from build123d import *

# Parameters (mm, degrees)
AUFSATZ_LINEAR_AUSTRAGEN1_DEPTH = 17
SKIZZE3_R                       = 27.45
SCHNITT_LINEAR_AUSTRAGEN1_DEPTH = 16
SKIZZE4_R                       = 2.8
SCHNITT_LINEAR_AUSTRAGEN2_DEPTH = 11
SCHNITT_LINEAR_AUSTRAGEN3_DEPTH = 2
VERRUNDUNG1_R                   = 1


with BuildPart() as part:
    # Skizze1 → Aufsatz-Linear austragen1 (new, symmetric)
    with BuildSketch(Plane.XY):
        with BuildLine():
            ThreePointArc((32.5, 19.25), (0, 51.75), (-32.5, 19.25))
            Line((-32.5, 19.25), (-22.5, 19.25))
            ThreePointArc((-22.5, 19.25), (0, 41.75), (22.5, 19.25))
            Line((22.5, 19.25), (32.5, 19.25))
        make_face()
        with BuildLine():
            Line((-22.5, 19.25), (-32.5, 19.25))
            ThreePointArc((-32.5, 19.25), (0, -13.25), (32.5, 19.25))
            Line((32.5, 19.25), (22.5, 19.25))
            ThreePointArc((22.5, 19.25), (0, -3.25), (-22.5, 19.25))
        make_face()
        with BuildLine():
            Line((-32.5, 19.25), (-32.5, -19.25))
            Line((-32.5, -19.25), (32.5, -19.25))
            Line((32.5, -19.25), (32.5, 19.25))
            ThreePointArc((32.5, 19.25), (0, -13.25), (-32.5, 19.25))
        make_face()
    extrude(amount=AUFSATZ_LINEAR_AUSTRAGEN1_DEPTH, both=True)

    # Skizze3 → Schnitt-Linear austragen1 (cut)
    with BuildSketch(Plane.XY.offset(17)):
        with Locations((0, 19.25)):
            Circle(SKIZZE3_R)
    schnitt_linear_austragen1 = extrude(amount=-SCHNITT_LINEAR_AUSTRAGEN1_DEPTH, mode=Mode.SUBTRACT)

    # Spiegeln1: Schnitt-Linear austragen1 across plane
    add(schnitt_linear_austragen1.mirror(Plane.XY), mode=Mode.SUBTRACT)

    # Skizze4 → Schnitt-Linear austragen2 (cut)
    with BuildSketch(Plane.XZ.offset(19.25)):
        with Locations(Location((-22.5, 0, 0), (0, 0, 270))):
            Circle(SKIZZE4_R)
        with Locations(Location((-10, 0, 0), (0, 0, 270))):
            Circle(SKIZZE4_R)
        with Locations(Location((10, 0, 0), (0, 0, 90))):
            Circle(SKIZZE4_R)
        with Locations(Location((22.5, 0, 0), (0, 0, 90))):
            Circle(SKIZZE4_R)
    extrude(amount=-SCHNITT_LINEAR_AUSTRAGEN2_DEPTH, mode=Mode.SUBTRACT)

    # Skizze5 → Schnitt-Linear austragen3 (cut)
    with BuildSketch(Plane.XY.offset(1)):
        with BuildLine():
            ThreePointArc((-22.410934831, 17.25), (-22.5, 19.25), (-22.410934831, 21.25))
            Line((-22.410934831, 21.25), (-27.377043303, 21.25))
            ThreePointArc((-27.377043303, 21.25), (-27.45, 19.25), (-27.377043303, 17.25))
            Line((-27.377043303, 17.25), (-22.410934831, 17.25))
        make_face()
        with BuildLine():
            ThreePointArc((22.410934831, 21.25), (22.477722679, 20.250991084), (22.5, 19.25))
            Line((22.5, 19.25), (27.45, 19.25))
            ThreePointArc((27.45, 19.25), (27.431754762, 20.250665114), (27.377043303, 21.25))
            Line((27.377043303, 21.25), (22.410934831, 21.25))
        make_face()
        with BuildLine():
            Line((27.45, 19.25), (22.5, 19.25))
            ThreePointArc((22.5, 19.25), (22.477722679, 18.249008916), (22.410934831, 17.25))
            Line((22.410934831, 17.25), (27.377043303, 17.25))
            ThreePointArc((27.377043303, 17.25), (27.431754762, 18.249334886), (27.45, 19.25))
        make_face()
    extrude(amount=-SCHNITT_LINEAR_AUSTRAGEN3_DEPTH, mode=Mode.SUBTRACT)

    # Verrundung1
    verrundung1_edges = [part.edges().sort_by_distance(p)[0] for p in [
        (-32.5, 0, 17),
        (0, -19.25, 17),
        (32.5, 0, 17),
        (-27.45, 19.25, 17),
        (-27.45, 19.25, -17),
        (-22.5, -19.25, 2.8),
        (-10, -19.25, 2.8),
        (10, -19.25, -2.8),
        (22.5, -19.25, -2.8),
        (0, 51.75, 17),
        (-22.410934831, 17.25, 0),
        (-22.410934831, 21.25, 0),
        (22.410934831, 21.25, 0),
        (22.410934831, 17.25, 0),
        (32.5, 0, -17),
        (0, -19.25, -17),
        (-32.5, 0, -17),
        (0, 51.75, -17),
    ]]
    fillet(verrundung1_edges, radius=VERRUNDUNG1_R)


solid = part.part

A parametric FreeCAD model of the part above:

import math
import FreeCAD as App
import Part
import Sketcher

V = App.Vector
Q = App.Units.Quantity


def edges_at(feature, points):
    """Names of the edges that pass closest to the given points."""
    edges = feature.Shape.Edges
    near = lambda p: min(range(len(edges)), key=lambda i: edges[i].distToShape(Part.Vertex(*p))[0])
    return sorted({f"Edge{near(p) + 1}" for p in points})

doc = App.newDocument("Part")
body = doc.addObject("PartDesign::Body", "Body")

# Sketch on XY plane
sketch1 = body.newObject("Sketcher::SketchObject", "Sketch")
sketch1.AttachmentSupport = (doc.getObject("XY_Plane"), [""])
sketch1.MapMode = "FlatFace"
sketch1.addGeometry([
    Part.ArcOfCircle(Part.Circle(V(0, 19.25, 0), V(0, 0, 1), 32.5), math.radians(0), math.radians(180)),  # 0
    Part.LineSegment(V(-32.5, 19.25, 0), V(-32.5, -19.25, 0)),  # 1
    Part.LineSegment(V(-32.5, -19.25, 0), V(32.5, -19.25, 0)),  # 2
    Part.LineSegment(V(32.5, -19.25, 0), V(32.5, 19.25, 0)),  # 3
    Part.Circle(V(0, 19.25, 0), V(0, 0, 1), 22.5),  # 4
], False)
sketch1.addConstraint([
    Sketcher.Constraint("Tangent", 0, 2, 1, 1),
    Sketcher.Constraint("Coincident", 1, 2, 2, 1),
    Sketcher.Constraint("Coincident", 2, 2, 3, 1),
    Sketcher.Constraint("Tangent", 3, 2, 0, 1),
    Sketcher.Constraint("Vertical", 1),
    Sketcher.Constraint("Horizontal", 2),
    Sketcher.Constraint("Vertical", 3),
    Sketcher.Constraint("Coincident", 4, 3, 0, 3),
    Sketcher.Constraint("Symmetric", 0, 2, 2, 2, -1, 1),
    Sketcher.Constraint("Diameter", 4, Q("45 mm")),
    Sketcher.Constraint("Radius", 0, Q("32.5 mm")),
    Sketcher.Constraint("DistanceY", 1, 2, 1, 1, Q("38.5 mm")),
])
pad1 = body.newObject("PartDesign::Pad", "Pad")
pad1.Profile = sketch1
pad1.Length = 34
pad1.Midplane = True

# Sketch on XY plane
sketch2 = body.newObject("Sketcher::SketchObject", "Sketch001")
sketch2.AttachmentSupport = (doc.getObject("XY_Plane"), [""])
sketch2.MapMode = "FlatFace"
sketch2.AttachmentOffset = App.Placement(V(0, 0, 17), App.Rotation())
sketch2.addGeometry(Part.Circle(V(0, 19.25, 0), V(0, 0, 1), 27.45), False)
sketch2.addConstraint([
    Sketcher.Constraint("PointOnObject", 0, 3, -2),
    Sketcher.Constraint("Diameter", 0, Q("54.9 mm")),
    Sketcher.Constraint("DistanceY", -1, 1, 0, 3, Q("19.25 mm")),
])
pocket1 = body.newObject("PartDesign::Pocket", "Pocket")
pocket1.Profile = sketch2
pocket1.Length = 16
doc.recompute()

mirrored = body.newObject("PartDesign::Mirrored", "Mirrored")
mirrored.Originals = [pocket1]
mirrored.MirrorPlane = (doc.getObject("XY_Plane"), [""])
body.Tip = mirrored

# Sketch on XZ plane
sketch3 = body.newObject("Sketcher::SketchObject", "Sketch002")
sketch3.AttachmentSupport = (doc.getObject("XZ_Plane"), [""])
sketch3.MapMode = "FlatFace"
sketch3.AttachmentOffset = App.Placement(V(0, 0, 19.25), App.Rotation())
sketch3.addGeometry([
    Part.Circle(V(-22.5, 0, 0), V(0, 0, 1), 2.8),
    Part.Circle(V(-10, 0, 0), V(0, 0, 1), 2.8),
    Part.Circle(V(10, 0, 0), V(0, 0, 1), 2.8),
    Part.Circle(V(22.5, 0, 0), V(0, 0, 1), 2.8),
], False)
sketch3.addConstraint([
    Sketcher.Constraint("Equal", 0, 1),
    Sketcher.Constraint("Equal", 1, 2),
    Sketcher.Constraint("Equal", 2, 3),
    Sketcher.Constraint("Symmetric", 1, 3, 2, 3, -1, 1),
    Sketcher.Constraint("Symmetric", 0, 3, 3, 3, -1, 1),
    Sketcher.Constraint("PointOnObject", 0, 3, -1),
    Sketcher.Constraint("PointOnObject", 1, 3, -1),
    Sketcher.Constraint("Diameter", 0, Q("5.6 mm")),
    Sketcher.Constraint("DistanceX", 1, 3, -1, 1, Q("10 mm")),
    Sketcher.Constraint("DistanceX", 0, 3, 3, 3, Q("45 mm")),
])
pocket2 = body.newObject("PartDesign::Pocket", "Pocket001")
pocket2.Profile = sketch3
pocket2.Length = 11

# Sketch on XY plane
sketch4 = body.newObject("Sketcher::SketchObject", "Sketch003")
sketch4.AttachmentSupport = (doc.getObject("XY_Plane"), [""])
sketch4.MapMode = "FlatFace"
sketch4.AttachmentOffset = App.Placement(V(0, 0, 1), App.Rotation())
sketch4.addGeometry([
    Part.ArcOfCircle(Part.Circle(V(0, 19.25, 0), V(0, 0, 1), 22.5), math.radians(174.900311), math.radians(185.099689)),  # 0
    Part.LineSegment(V(-22.410935, 21.25, 0), V(-27.377043, 21.25, 0)),  # 1
    Part.ArcOfCircle(Part.Circle(V(0, 19.25, 0), V(0, 0, 1), 27.45), math.radians(175.821742), math.radians(184.178258)),  # 2
    Part.LineSegment(V(-27.377043, 17.25, 0), V(-22.410935, 17.25, 0)),  # 3
    Part.ArcOfCircle(Part.Circle(V(0, 19.25, 0), V(0, 0, 1), 22.5), math.radians(0), math.radians(5.099689)),  # 4
    Part.ArcOfCircle(Part.Circle(V(0, 19.25, 0), V(0, 0, 1), 22.5), math.radians(-5.099689), math.radians(0)),  # 5
    Part.LineSegment(V(22.410935, 17.25, 0), V(27.377043, 17.25, 0)),  # 6
    Part.ArcOfCircle(Part.Circle(V(0, 19.25, 0), V(0, 0, 1), 27.45), math.radians(-4.178258), math.radians(0)),  # 7
    Part.ArcOfCircle(Part.Circle(V(0, 19.25, 0), V(0, 0, 1), 27.45), math.radians(0), math.radians(4.178258)),  # 8
    Part.LineSegment(V(27.377043, 21.25, 0), V(22.410935, 21.25, 0)),  # 9
], False)
sketch4.addConstraint([
    Sketcher.Constraint("Coincident", 0, 1, 1, 1),
    Sketcher.Constraint("Coincident", 1, 2, 2, 1),
    Sketcher.Constraint("Coincident", 2, 2, 3, 1),
    Sketcher.Constraint("Coincident", 3, 2, 0, 2),
    Sketcher.Constraint("Tangent", 4, 1, 5, 2),
    Sketcher.Constraint("Coincident", 5, 1, 6, 1),
    Sketcher.Constraint("Coincident", 6, 2, 7, 1),
    Sketcher.Constraint("Tangent", 7, 2, 8, 1),
    Sketcher.Constraint("Coincident", 8, 2, 9, 1),
    Sketcher.Constraint("Coincident", 9, 2, 4, 2),
    Sketcher.Constraint("Horizontal", 1),
    Sketcher.Constraint("Horizontal", 3),
    Sketcher.Constraint("Horizontal", 6),
    Sketcher.Constraint("Horizontal", 9),
    Sketcher.Constraint("Coincident", 2, 3, 0, 3),
    Sketcher.Constraint("Coincident", 4, 3, 0, 3),
    Sketcher.Constraint("Coincident", 7, 3, 0, 3),
    Sketcher.Constraint("Equal", 0, 4),
    Sketcher.Constraint("Equal", 4, 5),
    Sketcher.Constraint("Equal", 2, 7),
    Sketcher.Constraint("Equal", 7, 8),
    Sketcher.Constraint("Symmetric", 3, 2, 5, 1, -2),
    Sketcher.Constraint("Horizontal", 8, 3, 4, 1),
    Sketcher.Constraint("Horizontal", 4, 1, 7, 2),
    Sketcher.Constraint("Horizontal", 1, 2, 8, 2),
    Sketcher.Constraint("Vertical", 1, 2, 2, 2),
    Sketcher.Constraint("Radius", 0, Q("22.5 mm")),
    Sketcher.Constraint("Radius", 2, Q("27.45 mm")),
    Sketcher.Constraint("DistanceY", 7, 3, 0, 1, Q("2 mm")),
    Sketcher.Constraint("DistanceY", -1, 1, 0, 3, Q("19.25 mm")),
])
pocket3 = body.newObject("PartDesign::Pocket", "Pocket002")
pocket3.Profile = sketch4
pocket3.Length = 2
doc.recompute()

fillet = body.newObject("PartDesign::Fillet", "Fillet")
fillet.Base = (pocket3, edges_at(pocket3, [
    (-32.5, 0, 17),
    (0, -19.25, 17),
    (32.5, 0, 17),
    (-27.45, 19.25, 17),
    (-27.45, 19.25, -17),
    (-22.5, -19.25, 2.8),
    (-10, -19.25, 2.8),
    (10, -19.25, -2.8),
    (22.5, -19.25, -2.8),
    (0, 51.75, 17),
    (-22.411, 17.25, 0),
    (-22.411, 21.25, 0),
    (22.411, 21.25, 0),
    (22.411, 17.25, 0),
    (32.5, 0, -17),
    (0, -19.25, -17),
    (-32.5, 0, -17),
    (0, 51.75, -17),
]))
fillet.Radius = 1

doc.recompute()
